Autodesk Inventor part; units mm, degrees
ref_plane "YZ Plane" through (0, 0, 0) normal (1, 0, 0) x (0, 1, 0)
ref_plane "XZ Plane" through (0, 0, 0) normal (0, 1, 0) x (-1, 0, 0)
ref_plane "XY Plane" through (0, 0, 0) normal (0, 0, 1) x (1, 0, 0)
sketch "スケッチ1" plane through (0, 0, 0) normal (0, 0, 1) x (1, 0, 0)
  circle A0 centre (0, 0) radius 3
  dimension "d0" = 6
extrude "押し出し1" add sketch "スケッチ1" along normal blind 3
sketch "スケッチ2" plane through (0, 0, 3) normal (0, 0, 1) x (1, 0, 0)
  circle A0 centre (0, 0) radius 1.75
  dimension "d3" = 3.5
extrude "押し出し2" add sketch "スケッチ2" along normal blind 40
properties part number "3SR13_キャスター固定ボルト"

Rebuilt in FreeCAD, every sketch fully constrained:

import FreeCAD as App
import Part
import Sketcher
from FreeCAD import Vector

doc = App.newDocument("Part")
body = doc.addObject("PartDesign::Body", "Body")

# Sketch on XY plane
sketch1 = body.newObject("Sketcher::SketchObject", "Sketch")
sketch1.AttachmentSupport = (doc.getObject("XY_Plane"), [""])
sketch1.MapMode = "FlatFace"
sketch1.addGeometry(Part.Circle(Vector(0, 0, 0), Vector(0, 0, 1), 3), False)
sketch1.addConstraint([
    Sketcher.Constraint("Coincident", 0, 3, -1, 1),
    Sketcher.Constraint("Diameter", 0, 6.0),
])
pad1 = body.newObject("PartDesign::Pad", "Pad")
pad1.Profile = sketch1
pad1.Length = 3

# Sketch on XY plane
sketch2 = body.newObject("Sketcher::SketchObject", "Sketch001")
sketch2.AttachmentSupport = (doc.getObject("XY_Plane"), [""])
sketch2.MapMode = "FlatFace"
sketch2.AttachmentOffset = App.Placement(Vector(0, 0, 3), App.Rotation())
sketch2.addGeometry(Part.Circle(Vector(0, 0, 0), Vector(0, 0, 1), 1.75), False)
sketch2.addConstraint([
    Sketcher.Constraint("Coincident", 0, 3, -1, 1),
    Sketcher.Constraint("Diameter", 0, 3.5),
])
pad2 = body.newObject("PartDesign::Pad", "Pad001")
pad2.Profile = sketch2
pad2.Length = 40

doc.recompute()
